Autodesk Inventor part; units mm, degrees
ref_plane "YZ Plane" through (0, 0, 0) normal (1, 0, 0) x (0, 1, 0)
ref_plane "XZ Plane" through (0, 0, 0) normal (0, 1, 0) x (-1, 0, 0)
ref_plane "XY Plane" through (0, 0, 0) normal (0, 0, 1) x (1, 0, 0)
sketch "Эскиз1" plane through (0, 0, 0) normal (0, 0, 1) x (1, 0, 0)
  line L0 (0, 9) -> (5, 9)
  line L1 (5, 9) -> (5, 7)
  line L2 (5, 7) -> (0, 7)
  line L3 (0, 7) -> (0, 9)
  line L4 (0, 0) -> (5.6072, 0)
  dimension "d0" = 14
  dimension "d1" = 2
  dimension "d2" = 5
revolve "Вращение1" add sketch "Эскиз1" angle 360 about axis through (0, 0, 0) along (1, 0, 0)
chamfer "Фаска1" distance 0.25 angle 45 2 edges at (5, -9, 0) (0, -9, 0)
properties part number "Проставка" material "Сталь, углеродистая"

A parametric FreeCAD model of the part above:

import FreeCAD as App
import Part
import Sketcher


def edges_at(feature, points):
    """Names of the edges that pass closest to the given points."""
    edges = feature.Shape.Edges
    near = lambda p: min(range(len(edges)), key=lambda i: edges[i].distToShape(Part.Vertex(*p))[0])
    return sorted({f"Edge{near(p) + 1}" for p in points})


def add_polygon(sketch, points):
    """Adds a closed chain of lines whose ends are joined by coincident constraints."""
    first, n = sketch.GeometryCount, len(points)
    for a, b in zip(points, points[1:] + points[:1]):
        sketch.addGeometry(Part.LineSegment(App.Vector(*a, 0), App.Vector(*b, 0)), False)
    for i in range(n):
        sketch.addConstraint(Sketcher.Constraint("Coincident", first + i, 2, first + (i + 1) % n, 1))

doc = App.newDocument("Part")
body = doc.addObject("PartDesign::Body", "Body")

# Sketch on XY plane
sketch1 = body.newObject("Sketcher::SketchObject", "Sketch")
sketch1.AttachmentSupport = (doc.getObject("XY_Plane"), [""])
sketch1.MapMode = "FlatFace"
add_polygon(sketch1, [(5, 9), (0, 9), (0, 7), (5, 7)])  # lines 0-3
sketch1.addConstraint([
    Sketcher.Constraint("Horizontal", 0),
    Sketcher.Constraint("Vertical", 1),
    Sketcher.Constraint("Horizontal", 2),
    Sketcher.Constraint("Vertical", 3),
    Sketcher.Constraint("PointOnObject", 0, 2, -2),
    Sketcher.Constraint("DistanceX", 0, 2, 0, 1, 5.0),
    Sketcher.Constraint("DistanceY", 1, 2, 1, 1, 2.0),
    Sketcher.Constraint("DistanceY", -1, 1, 0, 2, 9.0),
])
revolution = body.newObject("PartDesign::Revolution", "Revolution")
revolution.Profile = sketch1
revolution.ReferenceAxis = (sketch1, ["H_Axis"])
revolution.Angle = 360
doc.recompute()

chamfer = body.newObject("PartDesign::Chamfer", "Chamfer")
chamfer.Base = (revolution, edges_at(revolution, [(5, -9, 0), (0, -9, 0)]))
chamfer.Size = 0.25

doc.recompute()
